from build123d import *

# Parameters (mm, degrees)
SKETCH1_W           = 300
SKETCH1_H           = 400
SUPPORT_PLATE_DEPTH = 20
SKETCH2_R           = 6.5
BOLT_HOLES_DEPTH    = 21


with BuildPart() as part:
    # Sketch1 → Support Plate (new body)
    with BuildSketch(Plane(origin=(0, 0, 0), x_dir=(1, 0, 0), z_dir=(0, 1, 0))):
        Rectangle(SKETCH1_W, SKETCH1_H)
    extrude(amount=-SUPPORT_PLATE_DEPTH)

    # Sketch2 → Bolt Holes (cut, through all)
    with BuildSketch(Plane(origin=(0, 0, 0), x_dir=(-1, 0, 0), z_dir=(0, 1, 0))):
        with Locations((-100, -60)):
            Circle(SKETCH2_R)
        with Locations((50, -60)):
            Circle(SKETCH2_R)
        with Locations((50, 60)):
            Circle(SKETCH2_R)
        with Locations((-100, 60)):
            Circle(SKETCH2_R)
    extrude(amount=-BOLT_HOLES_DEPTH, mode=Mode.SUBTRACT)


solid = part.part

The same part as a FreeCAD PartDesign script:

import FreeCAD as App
import Part
import Sketcher
Q = App.Units.Quantity

doc = App.newDocument("Part")
body = doc.addObject("PartDesign::Body", "Body")

sketch1 = body.newObject("Sketcher::SketchObject", "Sketch")
sketch1.AttachmentSupport = (doc.getObject("XZ_Plane"), [""])
sketch1.MapMode = "FlatFace"
sketch1.addGeometry(Part.LineSegment(App.Vector(-150, -200, 0), App.Vector(-150, 200, 0)), False)
sketch1.addGeometry(Part.LineSegment(App.Vector(-150, 200, 0), App.Vector(150, 200, 0)), False)
sketch1.addGeometry(Part.LineSegment(App.Vector(150, 200, 0), App.Vector(150, -200, 0)), False)
sketch1.addGeometry(Part.LineSegment(App.Vector(150, -200, 0), App.Vector(-150, -200, 0)), False)
sketch1.addConstraint(Sketcher.Constraint("Coincident", 0, 2, 1, 1))
sketch1.addConstraint(Sketcher.Constraint("Coincident", 1, 2, 2, 1))
sketch1.addConstraint(Sketcher.Constraint("Coincident", 2, 2, 3, 1))
sketch1.addConstraint(Sketcher.Constraint("Coincident", 3, 2, 0, 1))
sketch1.addConstraint(Sketcher.Constraint("Vertical", 0))
sketch1.addConstraint(Sketcher.Constraint("Horizontal", 1))
sketch1.addConstraint(Sketcher.Constraint("Vertical", 2))
sketch1.addConstraint(Sketcher.Constraint("Horizontal", 3))
sketch1.addConstraint(Sketcher.Constraint("Symmetric", 0, 2, 2, 2, -1, 1))
sketch1.addConstraint(Sketcher.Constraint("DistanceX", 1, 1, 1, 2, Q("300 mm")))
sketch1.addConstraint(Sketcher.Constraint("DistanceY", 0, 1, 0, 2, Q("400 mm")))
pad1 = body.newObject("PartDesign::Pad", "Pad")
pad1.Profile = sketch1
pad1.Length = 20

sketch2 = body.newObject("Sketcher::SketchObject", "Sketch001")
sketch2.AttachmentSupport = (doc.getObject("XZ_Plane"), [""])
sketch2.MapMode = "FlatFace"
sketch2.addGeometry(Part.Circle(App.Vector(100, -60, 0), App.Vector(0, 0, 1), 6.5), False)
sketch2.addGeometry(Part.Circle(App.Vector(-50, -60, 0), App.Vector(0, 0, 1), 6.5), False)
sketch2.addGeometry(Part.Circle(App.Vector(-50, 60, 0), App.Vector(0, 0, 1), 6.5), False)
sketch2.addGeometry(Part.Circle(App.Vector(100, 60, 0), App.Vector(0, 0, 1), 6.5), False)
sketch2.addConstraint(Sketcher.Constraint("Equal", 0, 1))
sketch2.addConstraint(Sketcher.Constraint("Equal", 1, 2))
sketch2.addConstraint(Sketcher.Constraint("Equal", 2, 3))
sketch2.addConstraint(Sketcher.Constraint("Symmetric", 1, 3, 2, 3, -1))
sketch2.addConstraint(Sketcher.Constraint("Symmetric", 0, 3, 3, 3, -1))
sketch2.addConstraint(Sketcher.Constraint("Horizontal", 0, 3, 1, 3))
sketch2.addConstraint(Sketcher.Constraint("Diameter", 0, Q("13 mm")))
sketch2.addConstraint(Sketcher.Constraint("DistanceX", -1, 1, 0, 3, Q("100 mm")))
sketch2.addConstraint(Sketcher.Constraint("DistanceY", 0, 3, -1, 1, Q("60 mm")))
sketch2.addConstraint(Sketcher.Constraint("DistanceX", 1, 3, -1, 1, Q("50 mm")))
pocket1 = body.newObject("PartDesign::Pocket", "Pocket")
pocket1.Profile = sketch2
pocket1.Type = "ThroughAll"
pocket1.Reversed = True

doc.recompute()
